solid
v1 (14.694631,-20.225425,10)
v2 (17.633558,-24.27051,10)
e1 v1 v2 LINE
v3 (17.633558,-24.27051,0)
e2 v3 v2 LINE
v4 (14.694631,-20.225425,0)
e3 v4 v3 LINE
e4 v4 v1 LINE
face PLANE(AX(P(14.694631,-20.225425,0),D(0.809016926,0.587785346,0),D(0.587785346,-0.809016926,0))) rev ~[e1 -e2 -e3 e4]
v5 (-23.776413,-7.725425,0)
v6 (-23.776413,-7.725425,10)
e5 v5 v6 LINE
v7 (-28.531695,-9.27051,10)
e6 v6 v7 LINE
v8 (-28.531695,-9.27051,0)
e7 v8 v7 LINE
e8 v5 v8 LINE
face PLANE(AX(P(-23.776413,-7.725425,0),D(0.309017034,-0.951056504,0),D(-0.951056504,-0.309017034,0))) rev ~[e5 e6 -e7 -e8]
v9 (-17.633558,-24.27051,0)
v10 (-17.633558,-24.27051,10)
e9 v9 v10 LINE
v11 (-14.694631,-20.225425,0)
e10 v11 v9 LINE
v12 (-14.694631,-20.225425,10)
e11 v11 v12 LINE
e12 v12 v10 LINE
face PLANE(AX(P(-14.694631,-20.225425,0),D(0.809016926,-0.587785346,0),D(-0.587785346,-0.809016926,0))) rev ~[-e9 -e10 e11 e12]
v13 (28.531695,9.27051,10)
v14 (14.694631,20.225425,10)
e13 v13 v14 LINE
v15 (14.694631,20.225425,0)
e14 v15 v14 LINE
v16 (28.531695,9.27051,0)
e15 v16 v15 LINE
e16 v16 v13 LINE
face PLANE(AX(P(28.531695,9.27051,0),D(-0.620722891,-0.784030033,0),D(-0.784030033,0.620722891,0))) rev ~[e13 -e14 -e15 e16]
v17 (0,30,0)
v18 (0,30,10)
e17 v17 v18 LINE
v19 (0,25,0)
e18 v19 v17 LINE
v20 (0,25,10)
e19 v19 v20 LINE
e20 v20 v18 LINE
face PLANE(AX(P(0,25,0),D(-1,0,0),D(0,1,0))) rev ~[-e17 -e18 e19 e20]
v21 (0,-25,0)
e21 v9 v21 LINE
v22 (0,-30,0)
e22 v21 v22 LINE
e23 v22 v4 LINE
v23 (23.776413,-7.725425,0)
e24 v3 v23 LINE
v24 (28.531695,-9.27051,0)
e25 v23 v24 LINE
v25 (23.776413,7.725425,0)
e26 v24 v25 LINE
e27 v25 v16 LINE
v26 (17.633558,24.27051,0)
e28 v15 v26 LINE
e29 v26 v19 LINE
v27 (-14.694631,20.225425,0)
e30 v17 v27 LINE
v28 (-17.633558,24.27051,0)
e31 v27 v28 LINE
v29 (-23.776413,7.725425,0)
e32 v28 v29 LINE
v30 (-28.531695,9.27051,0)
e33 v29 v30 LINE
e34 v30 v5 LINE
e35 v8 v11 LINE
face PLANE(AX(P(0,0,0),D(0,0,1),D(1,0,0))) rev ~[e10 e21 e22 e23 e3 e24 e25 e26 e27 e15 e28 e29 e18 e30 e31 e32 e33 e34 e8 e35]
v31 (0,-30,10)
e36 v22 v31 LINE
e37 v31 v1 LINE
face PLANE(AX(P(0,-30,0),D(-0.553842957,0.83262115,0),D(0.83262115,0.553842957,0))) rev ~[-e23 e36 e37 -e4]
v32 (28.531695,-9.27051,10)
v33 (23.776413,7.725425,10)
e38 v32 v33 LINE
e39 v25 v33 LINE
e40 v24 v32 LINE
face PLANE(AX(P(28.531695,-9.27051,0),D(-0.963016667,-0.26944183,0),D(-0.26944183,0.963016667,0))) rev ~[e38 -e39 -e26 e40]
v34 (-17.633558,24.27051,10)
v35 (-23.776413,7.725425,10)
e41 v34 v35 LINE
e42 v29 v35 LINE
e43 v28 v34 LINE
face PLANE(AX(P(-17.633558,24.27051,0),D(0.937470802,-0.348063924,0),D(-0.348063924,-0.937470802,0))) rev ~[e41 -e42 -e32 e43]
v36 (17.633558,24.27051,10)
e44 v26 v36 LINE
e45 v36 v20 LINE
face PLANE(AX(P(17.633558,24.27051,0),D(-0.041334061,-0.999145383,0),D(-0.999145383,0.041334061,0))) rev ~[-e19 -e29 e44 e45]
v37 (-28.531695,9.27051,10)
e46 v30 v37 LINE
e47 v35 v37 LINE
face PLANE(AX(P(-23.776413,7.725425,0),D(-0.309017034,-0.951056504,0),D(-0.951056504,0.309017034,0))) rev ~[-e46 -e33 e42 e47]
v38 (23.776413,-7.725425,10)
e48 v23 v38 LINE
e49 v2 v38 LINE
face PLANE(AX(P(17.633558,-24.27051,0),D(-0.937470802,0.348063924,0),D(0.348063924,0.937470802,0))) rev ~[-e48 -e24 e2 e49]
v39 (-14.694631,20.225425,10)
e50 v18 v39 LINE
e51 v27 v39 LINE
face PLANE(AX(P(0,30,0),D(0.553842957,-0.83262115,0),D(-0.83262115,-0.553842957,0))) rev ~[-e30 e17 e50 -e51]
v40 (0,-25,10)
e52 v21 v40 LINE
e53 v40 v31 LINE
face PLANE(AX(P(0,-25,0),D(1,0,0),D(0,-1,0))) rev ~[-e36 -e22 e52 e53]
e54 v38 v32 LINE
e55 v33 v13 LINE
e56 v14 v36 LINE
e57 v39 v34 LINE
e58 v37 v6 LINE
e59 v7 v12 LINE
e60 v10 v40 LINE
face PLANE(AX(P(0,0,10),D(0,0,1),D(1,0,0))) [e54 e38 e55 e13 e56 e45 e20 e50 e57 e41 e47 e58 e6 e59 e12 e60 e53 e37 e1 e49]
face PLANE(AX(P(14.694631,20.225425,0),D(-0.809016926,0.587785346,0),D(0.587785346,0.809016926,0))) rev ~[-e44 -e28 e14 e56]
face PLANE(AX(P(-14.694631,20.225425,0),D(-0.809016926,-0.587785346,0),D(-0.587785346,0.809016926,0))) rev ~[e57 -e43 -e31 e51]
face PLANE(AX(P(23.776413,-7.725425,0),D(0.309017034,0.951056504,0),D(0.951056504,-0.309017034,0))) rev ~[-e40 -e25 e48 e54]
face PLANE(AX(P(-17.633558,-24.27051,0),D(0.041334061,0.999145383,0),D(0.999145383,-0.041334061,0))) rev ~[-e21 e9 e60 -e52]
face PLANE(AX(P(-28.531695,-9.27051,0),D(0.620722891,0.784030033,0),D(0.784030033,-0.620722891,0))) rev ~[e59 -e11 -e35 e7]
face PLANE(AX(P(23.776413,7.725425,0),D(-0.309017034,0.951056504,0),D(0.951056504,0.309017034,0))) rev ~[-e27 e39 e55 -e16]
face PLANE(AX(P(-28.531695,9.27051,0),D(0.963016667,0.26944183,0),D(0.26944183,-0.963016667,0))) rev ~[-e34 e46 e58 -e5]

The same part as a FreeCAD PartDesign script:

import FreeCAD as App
import Part
import Sketcher
Q = App.Units.Quantity

doc = App.newDocument("Part")
body = doc.addObject("PartDesign::Body", "Body")

# Sketch on XY plane
sketch1 = doc.addObject("Sketcher::SketchObject", "Sketch")
body.addObject(sketch1)
sketch1.AttachmentSupport = (doc.XY_Plane, [""])
sketch1.MapMode = "FlatFace"
sketch1.addGeometry(Part.LineSegment(App.Vector(0, 25, 0), App.Vector(0, 30, 0)), False)
sketch1.addGeometry(Part.LineSegment(App.Vector(0, 30, 0), App.Vector(-14.694631, 20.225425, 0)), False)
sketch1.addGeometry(Part.LineSegment(App.Vector(-14.694631, 20.225425, 0), App.Vector(-17.633558, 24.27051, 0)), False)
sketch1.addGeometry(Part.LineSegment(App.Vector(-17.633558, 24.27051, 0), App.Vector(-23.776413, 7.725425, 0)), False)
sketch1.addGeometry(Part.LineSegment(App.Vector(-23.776413, 7.725425, 0), App.Vector(-28.531695, 9.27051, 0)), False)
sketch1.addGeometry(Part.LineSegment(App.Vector(-28.531695, 9.27051, 0), App.Vector(-23.776413, -7.725425, 0)), False)
sketch1.addGeometry(Part.LineSegment(App.Vector(-23.776413, -7.725425, 0), App.Vector(-28.531695, -9.27051, 0)), False)
sketch1.addGeometry(Part.LineSegment(App.Vector(-28.531695, -9.27051, 0), App.Vector(-14.694631, -20.225425, 0)), False)
sketch1.addGeometry(Part.LineSegment(App.Vector(-14.694631, -20.225425, 0), App.Vector(-17.633558, -24.27051, 0)), False)
sketch1.addGeometry(Part.LineSegment(App.Vector(-17.633558, -24.27051, 0), App.Vector(0, -25, 0)), False)
sketch1.addGeometry(Part.LineSegment(App.Vector(0, -25, 0), App.Vector(0, -30, 0)), False)
sketch1.addGeometry(Part.LineSegment(App.Vector(0, -30, 0), App.Vector(14.694631, -20.225425, 0)), False)
sketch1.addGeometry(Part.LineSegment(App.Vector(14.694631, -20.225425, 0), App.Vector(17.633558, -24.27051, 0)), False)
sketch1.addGeometry(Part.LineSegment(App.Vector(17.633558, -24.27051, 0), App.Vector(23.776413, -7.725425, 0)), False)
sketch1.addGeometry(Part.LineSegment(App.Vector(23.776413, -7.725425, 0), App.Vector(28.531695, -9.27051, 0)), False)
sketch1.addGeometry(Part.LineSegment(App.Vector(28.531695, -9.27051, 0), App.Vector(23.776413, 7.725425, 0)), False)
sketch1.addGeometry(Part.LineSegment(App.Vector(23.776413, 7.725425, 0), App.Vector(28.531695, 9.27051, 0)), False)
sketch1.addGeometry(Part.LineSegment(App.Vector(28.531695, 9.27051, 0), App.Vector(14.694631, 20.225425, 0)), False)
sketch1.addGeometry(Part.LineSegment(App.Vector(14.694631, 20.225425, 0), App.Vector(17.633558, 24.27051, 0)), False)
sketch1.addGeometry(Part.LineSegment(App.Vector(17.633558, 24.27051, 0), App.Vector(0, 25, 0)), False)
sketch1.addConstraint(Sketcher.Constraint("Coincident", 0, 2, 1, 1))
sketch1.addConstraint(Sketcher.Constraint("Coincident", 1, 2, 2, 1))
sketch1.addConstraint(Sketcher.Constraint("Coincident", 2, 2, 3, 1))
sketch1.addConstraint(Sketcher.Constraint("Coincident", 3, 2, 4, 1))
sketch1.addConstraint(Sketcher.Constraint("Coincident", 4, 2, 5, 1))
sketch1.addConstraint(Sketcher.Constraint("Coincident", 5, 2, 6, 1))
sketch1.addConstraint(Sketcher.Constraint("Coincident", 6, 2, 7, 1))
sketch1.addConstraint(Sketcher.Constraint("Coincident", 7, 2, 8, 1))
sketch1.addConstraint(Sketcher.Constraint("Coincident", 8, 2, 9, 1))
sketch1.addConstraint(Sketcher.Constraint("Coincident", 9, 2, 10, 1))
sketch1.addConstraint(Sketcher.Constraint("Coincident", 10, 2, 11, 1))
sketch1.addConstraint(Sketcher.Constraint("Coincident", 11, 2, 12, 1))
sketch1.addConstraint(Sketcher.Constraint("Coincident", 12, 2, 13, 1))
sketch1.addConstraint(Sketcher.Constraint("Coincident", 13, 2, 14, 1))
sketch1.addConstraint(Sketcher.Constraint("Coincident", 14, 2, 15, 1))
sketch1.addConstraint(Sketcher.Constraint("Coincident", 15, 2, 16, 1))
sketch1.addConstraint(Sketcher.Constraint("Coincident", 16, 2, 17, 1))
sketch1.addConstraint(Sketcher.Constraint("Coincident", 17, 2, 18, 1))
sketch1.addConstraint(Sketcher.Constraint("Coincident", 18, 2, 19, 1))
sketch1.addConstraint(Sketcher.Constraint("Coincident", 19, 2, 0, 1))
sketch1.addConstraint(Sketcher.Constraint("Vertical", 0))
sketch1.addConstraint(Sketcher.Constraint("Vertical", 10))
sketch1.addConstraint(Sketcher.Constraint("Symmetric", 0, 2, 10, 2, -1, 1))
sketch1.addConstraint(Sketcher.Constraint("Symmetric", 1, 2, 11, 2, -1, 1))
sketch1.addConstraint(Sketcher.Constraint("Symmetric", 2, 2, 12, 2, -1, 1))
sketch1.addConstraint(Sketcher.Constraint("Symmetric", 3, 2, 13, 2, -1, 1))
sketch1.addConstraint(Sketcher.Constraint("Symmetric", 4, 2, 14, 2, -1, 1))
sketch1.addConstraint(Sketcher.Constraint("Symmetric", 5, 2, 15, 2, -1, 1))
sketch1.addConstraint(Sketcher.Constraint("Symmetric", 6, 2, 16, 2, -1, 1))
sketch1.addConstraint(Sketcher.Constraint("Symmetric", 7, 2, 17, 2, -1, 1))
sketch1.addConstraint(Sketcher.Constraint("Symmetric", 8, 2, 18, 2, -1, 1))
sketch1.addConstraint(Sketcher.Constraint("Symmetric", 7, 2, 11, 2, -2))
sketch1.addConstraint(Sketcher.Constraint("Symmetric", 8, 2, 12, 2, -2))
sketch1.addConstraint(Sketcher.Constraint("Symmetric", 5, 2, 13, 2, -2))
sketch1.addConstraint(Sketcher.Constraint("Symmetric", 6, 2, 14, 2, -2))
sketch1.addConstraint(Sketcher.Constraint("Symmetric", 9, 2, 19, 2, -1))
sketch1.addConstraint(Sketcher.Constraint("Equal", 1, 3))
sketch1.addConstraint(Sketcher.Constraint("Equal", 2, 4))
sketch1.addConstraint(Sketcher.Constraint("Equal", 3, 5))
sketch1.addConstraint(Sketcher.Constraint("Equal", 5, 7))
sketch1.addConstraint(Sketcher.Constraint("Equal", 7, 9))
sketch1.addConstraint(Sketcher.Constraint("DistanceY", 0, 1, 0, 2, Q("5 mm")))
sketch1.addConstraint(Sketcher.Constraint("Angle", 2, Q("126.000007 deg")))
sketch1.addConstraint(Sketcher.Constraint("Angle", 4, Q("161.999998 deg")))
sketch1.addConstraint(Sketcher.Constraint("Distance", 2, Q("5 mm")))
sketch1.addConstraint(Sketcher.Constraint("DistanceY", -1, 1, 0, 2, Q("30 mm")))
pad1 = doc.addObject("PartDesign::Pad", "Pad")
body.addObject(pad1)
pad1.Profile = sketch1
pad1.Length = 10

doc.recompute()
